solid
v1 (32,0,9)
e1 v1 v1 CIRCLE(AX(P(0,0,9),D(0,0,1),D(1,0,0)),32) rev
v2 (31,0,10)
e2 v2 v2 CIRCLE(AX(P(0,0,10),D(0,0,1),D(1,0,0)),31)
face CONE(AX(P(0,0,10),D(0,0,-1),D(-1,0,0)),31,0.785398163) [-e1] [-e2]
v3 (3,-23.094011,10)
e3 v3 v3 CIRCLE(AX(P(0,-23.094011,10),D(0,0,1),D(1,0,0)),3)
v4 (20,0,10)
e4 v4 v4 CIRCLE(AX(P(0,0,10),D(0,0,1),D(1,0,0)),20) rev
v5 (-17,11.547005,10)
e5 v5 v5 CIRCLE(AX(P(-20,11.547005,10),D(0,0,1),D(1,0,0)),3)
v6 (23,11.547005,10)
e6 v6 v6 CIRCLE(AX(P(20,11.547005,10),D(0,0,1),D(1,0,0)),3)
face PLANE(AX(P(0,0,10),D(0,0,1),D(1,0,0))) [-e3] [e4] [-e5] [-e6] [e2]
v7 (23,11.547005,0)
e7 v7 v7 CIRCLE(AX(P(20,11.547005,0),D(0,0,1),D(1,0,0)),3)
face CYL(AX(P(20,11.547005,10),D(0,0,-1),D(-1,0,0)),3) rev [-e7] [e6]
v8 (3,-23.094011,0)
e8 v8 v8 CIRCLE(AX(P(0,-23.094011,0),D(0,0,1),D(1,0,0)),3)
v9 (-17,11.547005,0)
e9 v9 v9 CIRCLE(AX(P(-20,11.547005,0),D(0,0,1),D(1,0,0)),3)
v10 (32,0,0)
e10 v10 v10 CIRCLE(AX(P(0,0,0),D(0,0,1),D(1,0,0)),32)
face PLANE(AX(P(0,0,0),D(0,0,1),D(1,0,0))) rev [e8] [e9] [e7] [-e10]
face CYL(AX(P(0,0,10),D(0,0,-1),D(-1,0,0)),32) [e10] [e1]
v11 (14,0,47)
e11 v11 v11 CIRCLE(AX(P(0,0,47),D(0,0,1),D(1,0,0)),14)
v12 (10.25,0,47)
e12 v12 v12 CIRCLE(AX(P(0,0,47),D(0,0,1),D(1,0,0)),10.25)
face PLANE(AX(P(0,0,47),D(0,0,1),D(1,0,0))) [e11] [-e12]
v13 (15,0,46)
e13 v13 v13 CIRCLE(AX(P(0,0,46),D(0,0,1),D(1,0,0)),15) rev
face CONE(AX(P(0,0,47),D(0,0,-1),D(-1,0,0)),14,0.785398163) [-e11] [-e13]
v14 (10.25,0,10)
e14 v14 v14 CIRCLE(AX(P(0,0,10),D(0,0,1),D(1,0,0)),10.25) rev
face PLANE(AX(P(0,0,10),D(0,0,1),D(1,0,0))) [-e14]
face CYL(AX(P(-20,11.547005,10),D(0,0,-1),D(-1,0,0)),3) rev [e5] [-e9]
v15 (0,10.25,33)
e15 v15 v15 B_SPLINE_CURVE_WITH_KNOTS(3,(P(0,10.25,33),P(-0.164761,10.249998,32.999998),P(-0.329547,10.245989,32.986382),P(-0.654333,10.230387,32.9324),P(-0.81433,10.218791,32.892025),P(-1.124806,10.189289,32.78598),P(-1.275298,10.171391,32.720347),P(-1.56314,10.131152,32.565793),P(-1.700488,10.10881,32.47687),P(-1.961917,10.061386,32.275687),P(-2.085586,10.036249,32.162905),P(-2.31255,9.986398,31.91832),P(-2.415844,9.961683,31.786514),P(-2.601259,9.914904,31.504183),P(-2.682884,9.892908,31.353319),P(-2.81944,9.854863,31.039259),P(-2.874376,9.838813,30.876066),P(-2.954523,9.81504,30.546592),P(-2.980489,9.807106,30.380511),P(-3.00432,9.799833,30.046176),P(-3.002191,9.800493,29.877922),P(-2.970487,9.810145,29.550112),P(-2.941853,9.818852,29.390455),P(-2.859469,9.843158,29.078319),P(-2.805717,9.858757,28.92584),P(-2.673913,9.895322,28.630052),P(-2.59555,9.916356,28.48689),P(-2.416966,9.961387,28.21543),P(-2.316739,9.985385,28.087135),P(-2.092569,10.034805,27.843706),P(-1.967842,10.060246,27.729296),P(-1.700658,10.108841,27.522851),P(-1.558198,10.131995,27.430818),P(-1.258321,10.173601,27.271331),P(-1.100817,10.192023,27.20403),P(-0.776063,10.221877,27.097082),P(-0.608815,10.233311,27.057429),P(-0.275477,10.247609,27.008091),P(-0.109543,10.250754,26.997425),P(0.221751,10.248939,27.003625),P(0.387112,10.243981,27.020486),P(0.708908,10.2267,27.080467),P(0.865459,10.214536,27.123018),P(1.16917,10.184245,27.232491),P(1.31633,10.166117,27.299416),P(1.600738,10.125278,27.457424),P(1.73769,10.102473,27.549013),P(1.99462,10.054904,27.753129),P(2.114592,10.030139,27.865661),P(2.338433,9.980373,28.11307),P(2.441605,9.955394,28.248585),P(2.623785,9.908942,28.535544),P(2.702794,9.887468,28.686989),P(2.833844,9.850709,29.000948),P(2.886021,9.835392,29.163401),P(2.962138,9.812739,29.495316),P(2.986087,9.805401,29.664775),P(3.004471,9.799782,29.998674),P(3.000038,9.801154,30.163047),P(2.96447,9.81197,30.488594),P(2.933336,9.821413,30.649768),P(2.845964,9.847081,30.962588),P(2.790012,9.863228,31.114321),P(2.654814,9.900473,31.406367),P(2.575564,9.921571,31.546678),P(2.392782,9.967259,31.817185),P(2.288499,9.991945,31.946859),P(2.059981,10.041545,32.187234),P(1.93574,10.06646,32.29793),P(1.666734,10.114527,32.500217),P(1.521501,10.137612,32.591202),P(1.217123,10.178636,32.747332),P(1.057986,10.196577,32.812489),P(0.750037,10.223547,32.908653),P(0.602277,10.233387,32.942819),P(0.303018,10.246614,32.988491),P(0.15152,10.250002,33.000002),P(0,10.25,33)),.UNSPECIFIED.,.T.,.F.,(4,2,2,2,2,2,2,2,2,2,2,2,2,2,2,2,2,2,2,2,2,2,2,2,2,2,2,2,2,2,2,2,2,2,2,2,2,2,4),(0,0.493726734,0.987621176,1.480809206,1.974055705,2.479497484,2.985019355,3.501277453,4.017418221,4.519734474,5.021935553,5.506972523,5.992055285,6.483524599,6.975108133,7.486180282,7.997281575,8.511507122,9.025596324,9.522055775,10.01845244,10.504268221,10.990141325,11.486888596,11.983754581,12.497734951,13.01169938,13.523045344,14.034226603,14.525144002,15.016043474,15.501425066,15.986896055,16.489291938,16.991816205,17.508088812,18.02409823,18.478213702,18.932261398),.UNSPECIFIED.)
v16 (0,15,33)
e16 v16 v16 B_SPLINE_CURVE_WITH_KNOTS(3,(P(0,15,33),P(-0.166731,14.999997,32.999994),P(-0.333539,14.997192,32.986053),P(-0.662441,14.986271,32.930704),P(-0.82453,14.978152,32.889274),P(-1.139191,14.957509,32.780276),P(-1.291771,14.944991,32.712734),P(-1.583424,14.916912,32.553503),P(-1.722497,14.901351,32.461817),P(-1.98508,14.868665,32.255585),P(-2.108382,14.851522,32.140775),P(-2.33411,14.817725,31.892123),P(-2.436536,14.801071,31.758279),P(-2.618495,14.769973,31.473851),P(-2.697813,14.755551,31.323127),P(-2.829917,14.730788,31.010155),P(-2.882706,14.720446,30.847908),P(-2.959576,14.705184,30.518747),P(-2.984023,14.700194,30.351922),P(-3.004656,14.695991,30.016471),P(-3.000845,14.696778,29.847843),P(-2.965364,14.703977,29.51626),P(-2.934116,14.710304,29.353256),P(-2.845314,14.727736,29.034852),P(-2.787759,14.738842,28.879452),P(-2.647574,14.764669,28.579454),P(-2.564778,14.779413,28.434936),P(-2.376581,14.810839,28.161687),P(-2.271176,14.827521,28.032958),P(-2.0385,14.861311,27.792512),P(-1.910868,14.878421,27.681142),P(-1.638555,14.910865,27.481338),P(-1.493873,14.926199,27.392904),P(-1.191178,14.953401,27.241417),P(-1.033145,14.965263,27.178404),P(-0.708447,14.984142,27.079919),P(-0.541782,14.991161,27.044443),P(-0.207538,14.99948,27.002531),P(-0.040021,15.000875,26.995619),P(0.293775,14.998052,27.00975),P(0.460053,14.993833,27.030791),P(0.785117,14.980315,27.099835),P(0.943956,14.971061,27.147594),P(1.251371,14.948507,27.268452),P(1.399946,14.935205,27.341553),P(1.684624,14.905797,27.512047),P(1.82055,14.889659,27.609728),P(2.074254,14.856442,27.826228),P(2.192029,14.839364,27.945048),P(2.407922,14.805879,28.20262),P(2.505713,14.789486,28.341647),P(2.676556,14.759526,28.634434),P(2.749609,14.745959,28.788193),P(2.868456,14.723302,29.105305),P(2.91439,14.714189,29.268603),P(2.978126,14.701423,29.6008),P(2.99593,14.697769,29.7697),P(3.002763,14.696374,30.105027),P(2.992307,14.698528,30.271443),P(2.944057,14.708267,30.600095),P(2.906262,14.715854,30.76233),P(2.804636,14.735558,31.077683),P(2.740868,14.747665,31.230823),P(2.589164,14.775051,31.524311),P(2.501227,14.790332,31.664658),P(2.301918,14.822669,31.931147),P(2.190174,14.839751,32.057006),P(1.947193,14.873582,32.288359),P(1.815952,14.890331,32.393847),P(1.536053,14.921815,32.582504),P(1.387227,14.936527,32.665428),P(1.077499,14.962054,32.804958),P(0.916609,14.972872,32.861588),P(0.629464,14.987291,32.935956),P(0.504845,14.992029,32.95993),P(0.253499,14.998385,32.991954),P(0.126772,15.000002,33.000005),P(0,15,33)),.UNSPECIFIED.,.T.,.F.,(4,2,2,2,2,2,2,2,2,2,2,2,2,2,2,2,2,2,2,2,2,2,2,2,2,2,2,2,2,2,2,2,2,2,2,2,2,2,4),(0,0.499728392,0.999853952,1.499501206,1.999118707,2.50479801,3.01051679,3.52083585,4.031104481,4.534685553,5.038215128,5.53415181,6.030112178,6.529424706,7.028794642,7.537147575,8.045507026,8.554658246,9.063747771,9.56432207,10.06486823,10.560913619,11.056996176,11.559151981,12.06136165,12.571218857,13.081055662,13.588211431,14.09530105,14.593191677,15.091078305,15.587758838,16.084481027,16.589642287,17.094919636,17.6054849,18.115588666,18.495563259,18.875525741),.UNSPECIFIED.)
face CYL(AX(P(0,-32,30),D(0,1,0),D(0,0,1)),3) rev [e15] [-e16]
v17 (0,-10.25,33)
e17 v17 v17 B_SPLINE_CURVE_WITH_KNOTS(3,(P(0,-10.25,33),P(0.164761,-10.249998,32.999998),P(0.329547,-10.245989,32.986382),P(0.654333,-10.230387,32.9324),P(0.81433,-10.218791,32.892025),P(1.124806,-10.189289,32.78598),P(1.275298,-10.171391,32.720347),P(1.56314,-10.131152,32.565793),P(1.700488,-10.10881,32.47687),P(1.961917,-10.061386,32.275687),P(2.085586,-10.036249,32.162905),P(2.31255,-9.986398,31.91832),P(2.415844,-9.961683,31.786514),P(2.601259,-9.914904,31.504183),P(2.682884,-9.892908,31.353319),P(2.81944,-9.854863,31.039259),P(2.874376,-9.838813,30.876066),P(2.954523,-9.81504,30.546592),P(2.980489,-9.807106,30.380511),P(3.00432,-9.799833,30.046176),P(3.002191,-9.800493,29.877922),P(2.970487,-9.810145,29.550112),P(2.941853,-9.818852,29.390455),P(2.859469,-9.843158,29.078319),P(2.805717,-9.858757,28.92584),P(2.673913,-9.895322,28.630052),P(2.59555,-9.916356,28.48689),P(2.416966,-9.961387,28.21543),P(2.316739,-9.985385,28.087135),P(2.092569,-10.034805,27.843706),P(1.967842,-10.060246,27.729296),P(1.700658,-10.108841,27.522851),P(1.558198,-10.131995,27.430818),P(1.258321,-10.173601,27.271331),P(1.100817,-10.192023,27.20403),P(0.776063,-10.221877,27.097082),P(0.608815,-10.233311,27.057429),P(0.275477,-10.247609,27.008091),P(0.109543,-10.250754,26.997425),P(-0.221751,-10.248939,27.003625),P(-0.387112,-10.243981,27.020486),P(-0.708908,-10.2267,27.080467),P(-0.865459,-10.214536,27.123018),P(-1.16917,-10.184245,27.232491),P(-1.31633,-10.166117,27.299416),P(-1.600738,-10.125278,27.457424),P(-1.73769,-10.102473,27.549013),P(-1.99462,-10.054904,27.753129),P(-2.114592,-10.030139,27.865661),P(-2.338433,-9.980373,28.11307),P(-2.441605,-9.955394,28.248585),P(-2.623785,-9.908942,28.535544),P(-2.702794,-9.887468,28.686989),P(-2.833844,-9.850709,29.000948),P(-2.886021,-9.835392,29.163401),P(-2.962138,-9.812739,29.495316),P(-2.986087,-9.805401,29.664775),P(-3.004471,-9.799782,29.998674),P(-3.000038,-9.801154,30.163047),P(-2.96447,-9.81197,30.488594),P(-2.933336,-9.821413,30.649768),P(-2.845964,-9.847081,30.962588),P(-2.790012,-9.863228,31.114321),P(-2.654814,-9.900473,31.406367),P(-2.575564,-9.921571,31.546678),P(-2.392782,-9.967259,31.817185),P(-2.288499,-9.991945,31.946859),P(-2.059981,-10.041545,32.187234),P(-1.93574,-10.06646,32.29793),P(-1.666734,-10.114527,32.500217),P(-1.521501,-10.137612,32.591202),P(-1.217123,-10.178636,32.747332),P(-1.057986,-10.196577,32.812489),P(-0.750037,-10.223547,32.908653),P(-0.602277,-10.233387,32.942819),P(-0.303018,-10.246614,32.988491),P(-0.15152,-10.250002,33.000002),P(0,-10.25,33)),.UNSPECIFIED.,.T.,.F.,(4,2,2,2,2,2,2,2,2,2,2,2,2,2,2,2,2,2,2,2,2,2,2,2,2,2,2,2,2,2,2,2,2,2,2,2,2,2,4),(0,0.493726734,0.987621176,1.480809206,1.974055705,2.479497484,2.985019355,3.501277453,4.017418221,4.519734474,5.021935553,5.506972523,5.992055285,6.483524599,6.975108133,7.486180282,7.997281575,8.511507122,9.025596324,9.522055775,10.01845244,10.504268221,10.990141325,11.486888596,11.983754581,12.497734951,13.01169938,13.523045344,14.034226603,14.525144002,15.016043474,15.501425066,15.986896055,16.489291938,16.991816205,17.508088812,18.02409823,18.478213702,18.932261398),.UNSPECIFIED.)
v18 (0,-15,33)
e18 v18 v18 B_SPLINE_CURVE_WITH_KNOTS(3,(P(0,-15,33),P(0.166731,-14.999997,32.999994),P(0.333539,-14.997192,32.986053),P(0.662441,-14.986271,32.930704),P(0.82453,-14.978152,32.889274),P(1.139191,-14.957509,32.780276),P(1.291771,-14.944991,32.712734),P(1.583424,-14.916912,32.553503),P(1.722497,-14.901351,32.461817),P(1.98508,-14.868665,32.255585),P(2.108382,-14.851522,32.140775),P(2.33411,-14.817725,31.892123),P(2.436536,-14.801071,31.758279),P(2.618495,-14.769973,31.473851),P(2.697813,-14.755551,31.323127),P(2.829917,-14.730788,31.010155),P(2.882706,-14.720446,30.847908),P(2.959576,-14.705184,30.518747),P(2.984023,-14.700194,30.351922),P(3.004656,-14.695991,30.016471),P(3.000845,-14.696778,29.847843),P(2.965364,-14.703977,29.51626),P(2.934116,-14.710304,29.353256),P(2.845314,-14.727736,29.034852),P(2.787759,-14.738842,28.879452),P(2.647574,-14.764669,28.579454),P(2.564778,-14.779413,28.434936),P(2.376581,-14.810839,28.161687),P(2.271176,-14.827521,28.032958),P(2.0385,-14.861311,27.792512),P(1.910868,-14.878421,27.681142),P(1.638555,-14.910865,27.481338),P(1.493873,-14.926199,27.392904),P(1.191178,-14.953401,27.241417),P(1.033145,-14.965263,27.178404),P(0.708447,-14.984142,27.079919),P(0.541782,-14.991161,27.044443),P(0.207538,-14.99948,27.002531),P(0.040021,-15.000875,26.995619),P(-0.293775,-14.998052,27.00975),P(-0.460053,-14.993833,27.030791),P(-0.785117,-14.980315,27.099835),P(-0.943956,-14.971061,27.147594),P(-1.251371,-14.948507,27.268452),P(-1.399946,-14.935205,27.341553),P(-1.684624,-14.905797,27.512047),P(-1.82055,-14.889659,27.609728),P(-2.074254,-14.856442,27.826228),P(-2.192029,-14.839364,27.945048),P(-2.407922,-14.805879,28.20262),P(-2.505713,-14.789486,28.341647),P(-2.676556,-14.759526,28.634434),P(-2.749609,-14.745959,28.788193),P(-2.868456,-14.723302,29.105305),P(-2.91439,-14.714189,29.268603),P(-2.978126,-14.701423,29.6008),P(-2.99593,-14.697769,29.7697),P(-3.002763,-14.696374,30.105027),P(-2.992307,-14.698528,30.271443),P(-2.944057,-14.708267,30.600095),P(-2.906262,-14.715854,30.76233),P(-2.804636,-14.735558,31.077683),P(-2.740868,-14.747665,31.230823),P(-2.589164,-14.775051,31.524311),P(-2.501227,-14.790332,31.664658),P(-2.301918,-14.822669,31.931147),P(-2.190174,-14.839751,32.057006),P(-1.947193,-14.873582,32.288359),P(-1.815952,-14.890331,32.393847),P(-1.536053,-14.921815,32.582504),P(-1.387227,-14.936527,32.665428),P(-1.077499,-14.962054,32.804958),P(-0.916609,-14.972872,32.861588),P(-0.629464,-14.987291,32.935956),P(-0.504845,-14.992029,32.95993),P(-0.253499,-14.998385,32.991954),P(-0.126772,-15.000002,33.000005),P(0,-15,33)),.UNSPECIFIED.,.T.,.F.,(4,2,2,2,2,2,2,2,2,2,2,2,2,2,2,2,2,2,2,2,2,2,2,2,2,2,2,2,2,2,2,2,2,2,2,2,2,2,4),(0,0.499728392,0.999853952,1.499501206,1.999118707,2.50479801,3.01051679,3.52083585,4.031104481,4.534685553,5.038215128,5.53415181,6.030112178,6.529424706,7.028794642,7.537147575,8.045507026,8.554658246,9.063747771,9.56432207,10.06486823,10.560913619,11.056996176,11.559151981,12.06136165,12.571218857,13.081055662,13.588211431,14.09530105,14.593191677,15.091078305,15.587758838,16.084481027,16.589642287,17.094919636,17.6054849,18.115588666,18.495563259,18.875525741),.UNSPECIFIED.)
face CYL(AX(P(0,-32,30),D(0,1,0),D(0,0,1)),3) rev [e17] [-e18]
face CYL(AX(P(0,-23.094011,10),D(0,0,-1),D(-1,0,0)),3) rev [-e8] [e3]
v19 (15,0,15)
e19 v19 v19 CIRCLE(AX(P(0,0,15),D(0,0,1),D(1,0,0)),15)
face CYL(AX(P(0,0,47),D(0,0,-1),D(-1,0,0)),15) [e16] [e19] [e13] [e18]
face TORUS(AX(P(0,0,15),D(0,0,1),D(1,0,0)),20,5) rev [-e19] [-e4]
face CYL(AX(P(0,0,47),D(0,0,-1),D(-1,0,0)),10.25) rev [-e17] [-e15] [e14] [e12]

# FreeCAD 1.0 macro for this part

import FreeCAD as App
import Part
import Sketcher
from FreeCAD import Vector


def edges_at(feature, points):
    """Names of the edges that pass closest to the given points."""
    edges = feature.Shape.Edges
    near = lambda p: min(range(len(edges)), key=lambda i: edges[i].distToShape(Part.Vertex(*p))[0])
    return sorted({f"Edge{near(p) + 1}" for p in points})

doc = App.newDocument("Part")
body = doc.addObject("PartDesign::Body", "Body")

# Sketch on XY plane
sketch1 = body.newObject("Sketcher::SketchObject", "Sketch")
sketch1.AttachmentSupport = (doc.getObject("XY_Plane"), [""])
sketch1.MapMode = "FlatFace"
sketch1.addGeometry(Part.Circle(Vector(0, 0, 0), Vector(0, 0, 1), 32), False)
sketch1.addGeometry(Part.Circle(Vector(0, -23.1, 0), Vector(0, 0, 1), 3), False)
sketch1.addGeometry(Part.Circle(Vector(-20, 11.5, 0), Vector(0, 0, 1), 3), False)
sketch1.addGeometry(Part.Circle(Vector(20, 11.5, 0), Vector(0, 0, 1), 3), False)
sketch1.addConstraint(Sketcher.Constraint("Coincident", 0, 3, -1, 1))
sketch1.addConstraint(Sketcher.Constraint("Equal", 1, 2))
sketch1.addConstraint(Sketcher.Constraint("Equal", 2, 3))
sketch1.addConstraint(Sketcher.Constraint("Symmetric", 2, 3, 3, 3, -2))
sketch1.addConstraint(Sketcher.Constraint("PointOnObject", 1, 3, -2))
sketch1.addConstraint(Sketcher.Constraint("Diameter", 0, 64.0))
sketch1.addConstraint(Sketcher.Constraint("Diameter", 1, 6.0))
sketch1.addConstraint(Sketcher.Constraint("DistanceX", 2, 3, -1, 1, 20.0))
sketch1.addConstraint(Sketcher.Constraint("DistanceY", 1, 3, -1, 1, 23.094011))
sketch1.addConstraint(Sketcher.Constraint("DistanceY", -1, 1, 2, 3, 11.547005))
pad1 = body.newObject("PartDesign::Pad", "Pad")
pad1.Profile = sketch1
pad1.Length = 10

# Sketch on XY plane
sketch2 = body.newObject("Sketcher::SketchObject", "Sketch001")
sketch2.AttachmentSupport = (doc.getObject("XY_Plane"), [""])
sketch2.MapMode = "FlatFace"
sketch2.AttachmentOffset = App.Placement(Vector(0, 0, 10), App.Rotation())
sketch2.addGeometry(Part.Circle(Vector(0, 0, 0), Vector(0, 0, 1), 15), False)
sketch2.addGeometry(Part.Circle(Vector(0, 0, 0), Vector(0, 0, 1), 10), False)
sketch2.addConstraint(Sketcher.Constraint("Coincident", 0, 3, -1, 1))
sketch2.addConstraint(Sketcher.Constraint("Coincident", 1, 3, -1, 1))
sketch2.addConstraint(Sketcher.Constraint("Diameter", 0, 30.0))
sketch2.addConstraint(Sketcher.Constraint("Diameter", 1, 20.5))
pad2 = body.newObject("PartDesign::Pad", "Pad001")
pad2.Profile = sketch2
pad2.Length = 37

# Sketch on XZ plane
sketch3 = body.newObject("Sketcher::SketchObject", "Sketch002")
sketch3.AttachmentSupport = (doc.getObject("XZ_Plane"), [""])
sketch3.MapMode = "FlatFace"
sketch3.addGeometry(Part.Circle(Vector(0, 30, 0), Vector(0, 0, 1), 3), False)
sketch3.addConstraint(Sketcher.Constraint("PointOnObject", 0, 3, -2))
sketch3.addConstraint(Sketcher.Constraint("Diameter", 0, 6.0))
sketch3.addConstraint(Sketcher.Constraint("DistanceY", -1, 1, 0, 3, 30.0))
pocket1 = body.newObject("PartDesign::Pocket", "Pocket")
pocket1.Profile = sketch3
pocket1.Type = "ThroughAll"
pocket1.Midplane = True
doc.recompute()

fillet = body.newObject("PartDesign::Fillet", "Fillet")
fillet.Base = (pocket1, edges_at(pocket1, [(-15, 0, 10)]))
fillet.Radius = 5
doc.recompute()

chamfer = body.newObject("PartDesign::Chamfer", "Chamfer")
chamfer.Base = (fillet, edges_at(fillet, [(-15, 0, 47), (-32, 0, 10)]))
chamfer.Size = 1

doc.recompute()
